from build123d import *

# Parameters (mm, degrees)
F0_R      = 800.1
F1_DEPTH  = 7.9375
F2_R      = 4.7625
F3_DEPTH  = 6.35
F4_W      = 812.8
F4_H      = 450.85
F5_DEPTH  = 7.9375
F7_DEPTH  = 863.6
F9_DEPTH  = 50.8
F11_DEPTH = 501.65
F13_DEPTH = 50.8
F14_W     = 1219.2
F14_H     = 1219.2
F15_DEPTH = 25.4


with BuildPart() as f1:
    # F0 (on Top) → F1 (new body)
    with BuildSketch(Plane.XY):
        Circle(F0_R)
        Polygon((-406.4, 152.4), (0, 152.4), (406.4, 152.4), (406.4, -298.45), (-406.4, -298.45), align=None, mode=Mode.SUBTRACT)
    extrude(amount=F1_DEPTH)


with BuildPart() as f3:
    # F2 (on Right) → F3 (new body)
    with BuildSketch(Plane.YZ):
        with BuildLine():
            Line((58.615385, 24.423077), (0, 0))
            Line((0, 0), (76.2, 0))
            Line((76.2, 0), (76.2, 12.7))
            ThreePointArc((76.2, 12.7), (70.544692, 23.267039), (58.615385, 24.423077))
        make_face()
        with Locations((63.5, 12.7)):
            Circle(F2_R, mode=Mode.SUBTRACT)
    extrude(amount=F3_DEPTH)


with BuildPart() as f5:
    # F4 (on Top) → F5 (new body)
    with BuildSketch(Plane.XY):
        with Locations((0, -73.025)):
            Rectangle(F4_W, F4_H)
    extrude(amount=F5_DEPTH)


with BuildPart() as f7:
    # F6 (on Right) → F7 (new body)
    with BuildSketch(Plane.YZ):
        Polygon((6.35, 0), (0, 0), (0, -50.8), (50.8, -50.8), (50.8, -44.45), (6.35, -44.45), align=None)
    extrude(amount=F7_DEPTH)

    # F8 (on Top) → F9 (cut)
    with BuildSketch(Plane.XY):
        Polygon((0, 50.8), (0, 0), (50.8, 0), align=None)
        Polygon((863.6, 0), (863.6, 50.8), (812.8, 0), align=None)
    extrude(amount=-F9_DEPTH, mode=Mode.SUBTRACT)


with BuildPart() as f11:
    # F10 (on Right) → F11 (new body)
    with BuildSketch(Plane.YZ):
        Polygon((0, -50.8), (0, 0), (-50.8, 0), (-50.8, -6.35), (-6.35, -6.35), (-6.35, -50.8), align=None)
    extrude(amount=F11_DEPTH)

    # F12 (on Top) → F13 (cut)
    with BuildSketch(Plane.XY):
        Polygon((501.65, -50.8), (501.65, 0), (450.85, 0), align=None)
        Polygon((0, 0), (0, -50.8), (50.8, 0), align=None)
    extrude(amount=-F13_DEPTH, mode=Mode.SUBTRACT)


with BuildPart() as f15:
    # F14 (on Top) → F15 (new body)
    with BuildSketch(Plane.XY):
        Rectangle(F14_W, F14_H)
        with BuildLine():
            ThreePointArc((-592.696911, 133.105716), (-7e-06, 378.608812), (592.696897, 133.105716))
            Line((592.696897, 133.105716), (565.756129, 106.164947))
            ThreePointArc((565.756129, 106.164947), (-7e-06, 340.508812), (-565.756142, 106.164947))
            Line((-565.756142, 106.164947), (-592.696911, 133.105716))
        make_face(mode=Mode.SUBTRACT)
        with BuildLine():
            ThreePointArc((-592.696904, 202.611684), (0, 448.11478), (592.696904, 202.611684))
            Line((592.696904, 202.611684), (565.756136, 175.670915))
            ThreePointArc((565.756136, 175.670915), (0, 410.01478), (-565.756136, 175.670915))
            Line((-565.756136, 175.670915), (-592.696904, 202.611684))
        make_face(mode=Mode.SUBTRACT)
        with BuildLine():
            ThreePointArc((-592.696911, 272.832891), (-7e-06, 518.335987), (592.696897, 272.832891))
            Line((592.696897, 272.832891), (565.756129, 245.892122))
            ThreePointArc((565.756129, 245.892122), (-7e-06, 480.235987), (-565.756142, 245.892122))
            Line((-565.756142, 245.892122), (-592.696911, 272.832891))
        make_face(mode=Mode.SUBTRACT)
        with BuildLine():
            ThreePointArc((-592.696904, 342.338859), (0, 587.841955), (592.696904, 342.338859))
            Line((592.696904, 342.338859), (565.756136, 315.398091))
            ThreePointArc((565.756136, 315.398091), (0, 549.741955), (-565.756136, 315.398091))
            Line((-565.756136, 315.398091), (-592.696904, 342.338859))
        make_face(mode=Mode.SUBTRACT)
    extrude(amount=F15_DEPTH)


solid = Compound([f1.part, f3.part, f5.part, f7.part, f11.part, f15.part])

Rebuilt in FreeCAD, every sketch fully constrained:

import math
import FreeCAD as App
import Part
import Sketcher

V = App.Vector
Q = App.Units.Quantity

doc = App.newDocument("Part")
body = doc.addObject("PartDesign::Body", "Body")

sketch1 = doc.addObject("Sketcher::SketchObject", "Sketch")
body.addObject(sketch1)
sketch1.AttachmentSupport = (doc.XY_Plane, [""])
sketch1.MapMode = "FlatFace"
sketch1.addGeometry([
    Part.Circle(V(0, 0, 0), V(0, 0, 1), 800),
    Part.LineSegment(V(-406, -298, 0), V(-406, 152, 0)),
    Part.LineSegment(V(-406, 152, 0), V(406, 152, 0)),
    Part.LineSegment(V(406, 152, 0), V(406, -298, 0)),
    Part.LineSegment(V(406, -298, 0), V(-406, -298, 0)),
], False)
sketch1.addConstraint([
    Sketcher.Constraint("Coincident", 1, 2, 2, 1),
    Sketcher.Constraint("Coincident", 2, 2, 3, 1),
    Sketcher.Constraint("Coincident", 3, 2, 4, 1),
    Sketcher.Constraint("Coincident", 4, 2, 1, 1),
    Sketcher.Constraint("Vertical", 1),
    Sketcher.Constraint("Horizontal", 2),
    Sketcher.Constraint("Vertical", 3),
    Sketcher.Constraint("Horizontal", 4),
    Sketcher.Constraint("Coincident", 0, 3, -1, 1),
    Sketcher.Constraint("Diameter", 0, Q("63 in")),
    Sketcher.Constraint("DistanceX", 2, 1, 2, 2, Q("32 in")),
    Sketcher.Constraint("DistanceX", 1, 2, -1, 1, Q("16 in")),
    Sketcher.Constraint("DistanceY", -1, 1, 1, 2, Q("6 in")),
    Sketcher.Constraint("DistanceY", 1, 1, 1, 2, Q("17.75 in")),
])
pad1 = doc.addObject("PartDesign::Pad", "Pad")
body.addObject(pad1)
pad1.Profile = sketch1
pad1.Length = Q("0.3125 in")
body2 = doc.addObject("PartDesign::Body", "Body001")

sketch2 = doc.addObject("Sketcher::SketchObject", "Sketch001")
body2.addObject(sketch2)
sketch2.AttachmentSupport = (doc.getObject("YZ_Plane001"), [""])
sketch2.MapMode = "FlatFace"
sketch2.addGeometry([
    Part.LineSegment(V(58.6, 24.4, 0), V(0, 0, 0)),
    Part.LineSegment(V(0, 0, 0), V(76.2, 0, 0)),
    Part.LineSegment(V(76.2, 0, 0), V(76.2, 12.7, 0)),
    Part.ArcOfCircle(Part.Circle(V(63.5, 12.7, 0), V(0, 0, 1), 12.7), math.radians(0), math.radians(113)),
    Part.Circle(V(63.5, 12.7, 0), V(0, 0, 1), 4.8),
], False)
sketch2.addConstraint([
    Sketcher.Constraint("Coincident", 0, 2, 1, 1),
    Sketcher.Constraint("Coincident", 1, 2, 2, 1),
    Sketcher.Constraint("Tangent", 2, 2, 3, 1),
    Sketcher.Constraint("Tangent", 3, 2, 0, 1),
    Sketcher.Constraint("Horizontal", 1),
    Sketcher.Constraint("Vertical", 2),
    Sketcher.Constraint("Coincident", 0, 2, -1, 1),
    Sketcher.Constraint("Coincident", 4, 3, 3, 3),
    Sketcher.Constraint("Radius", 3, Q("0.5 in")),
    Sketcher.Constraint("DistanceX", 1, 1, 1, 2, Q("3 in")),
    Sketcher.Constraint("Diameter", 4, Q("0.375 in")),
    Sketcher.Constraint("DistanceY", 2, 1, 2, 2, Q("0.5 in")),
])
pad2 = doc.addObject("PartDesign::Pad", "Pad001")
body2.addObject(pad2)
pad2.Profile = sketch2
pad2.Length = Q("0.25 in")
body3 = doc.addObject("PartDesign::Body", "Body002")

sketch3 = doc.addObject("Sketcher::SketchObject", "Sketch002")
body3.addObject(sketch3)
sketch3.AttachmentSupport = (doc.getObject("XY_Plane002"), [""])
sketch3.MapMode = "FlatFace"
sketch3.addGeometry([
    Part.LineSegment(V(-406, 152, 0), V(-406, -298, 0)),
    Part.LineSegment(V(-406, -298, 0), V(406, -298, 0)),
    Part.LineSegment(V(406, -298, 0), V(406, 152, 0)),
    Part.LineSegment(V(406, 152, 0), V(-406, 152, 0)),
], False)
sketch3.addConstraint([
    Sketcher.Constraint("Coincident", 0, 2, 1, 1),
    Sketcher.Constraint("Coincident", 1, 2, 2, 1),
    Sketcher.Constraint("Coincident", 2, 2, 3, 1),
    Sketcher.Constraint("Coincident", 3, 2, 0, 1),
    Sketcher.Constraint("Vertical", 0),
    Sketcher.Constraint("Horizontal", 1),
    Sketcher.Constraint("Vertical", 2),
    Sketcher.Constraint("Horizontal", 3),
    Sketcher.Constraint("DistanceX", 1, 1, 1, 2, Q("32 in")),
    Sketcher.Constraint("DistanceX", 0, 2, -1, 1, Q("16 in")),
    Sketcher.Constraint("DistanceY", -1, 1, 2, 2, Q("6 in")),
    Sketcher.Constraint("DistanceY", 0, 2, 0, 1, Q("17.75 in")),
])
pad3 = doc.addObject("PartDesign::Pad", "Pad002")
body3.addObject(pad3)
pad3.Profile = sketch3
pad3.Length = Q("0.3125 in")
body4 = doc.addObject("PartDesign::Body", "Body003")

sketch4 = doc.addObject("Sketcher::SketchObject", "Sketch003")
body4.addObject(sketch4)
sketch4.AttachmentSupport = (doc.getObject("YZ_Plane003"), [""])
sketch4.MapMode = "FlatFace"
sketch4.addGeometry([
    Part.LineSegment(V(6, 0, 0), V(0, 0, 0)),
    Part.LineSegment(V(0, 0, 0), V(0, -51, 0)),
    Part.LineSegment(V(0, -51, 0), V(51, -51, 0)),
    Part.LineSegment(V(51, -51, 0), V(51, -44, 0)),
    Part.LineSegment(V(51, -44, 0), V(6, -44, 0)),
    Part.LineSegment(V(6, -44, 0), V(6, 0, 0)),
], False)
sketch4.addConstraint([
    Sketcher.Constraint("Coincident", 0, 2, 1, 1),
    Sketcher.Constraint("Coincident", 1, 2, 2, 1),
    Sketcher.Constraint("Coincident", 2, 2, 3, 1),
    Sketcher.Constraint("Coincident", 3, 2, 4, 1),
    Sketcher.Constraint("Coincident", 4, 2, 5, 1),
    Sketcher.Constraint("Coincident", 5, 2, 0, 1),
    Sketcher.Constraint("Horizontal", 0),
    Sketcher.Constraint("Vertical", 1),
    Sketcher.Constraint("Horizontal", 2),
    Sketcher.Constraint("Vertical", 3),
    Sketcher.Constraint("Horizontal", 4),
    Sketcher.Constraint("Vertical", 5),
    Sketcher.Constraint("Coincident", 0, 2, -1, 1),
    Sketcher.Constraint("Equal", 2, 1),
    Sketcher.Constraint("Equal", 0, 3),
    Sketcher.Constraint("DistanceX", 2, 1, 2, 2, Q("2 in")),
    Sketcher.Constraint("DistanceX", 0, 2, 0, 1, Q("0.25 in")),
])
pad4 = doc.addObject("PartDesign::Pad", "Pad003")
body4.addObject(pad4)
pad4.Profile = sketch4
pad4.Length = Q("34 in")

sketch5 = doc.addObject("Sketcher::SketchObject", "Sketch004")
body4.addObject(sketch5)
sketch5.AttachmentSupport = (doc.getObject("XY_Plane003"), [""])
sketch5.MapMode = "FlatFace"
sketch5.addGeometry([
    Part.LineSegment(V(0, 51, 0), V(0, 0, 0)),
    Part.LineSegment(V(0, 0, 0), V(51, 0, 0)),
    Part.LineSegment(V(51, 0, 0), V(0, 51, 0)),
    Part.LineSegment(V(864, 0, 0), V(864, 51, 0)),
    Part.LineSegment(V(864, 51, 0), V(813, 0, 0)),
    Part.LineSegment(V(813, 0, 0), V(864, 0, 0)),
], False)
sketch5.addConstraint([
    Sketcher.Constraint("Coincident", 0, 2, 1, 1),
    Sketcher.Constraint("Coincident", 1, 2, 2, 1),
    Sketcher.Constraint("Coincident", 2, 2, 0, 1),
    Sketcher.Constraint("Coincident", 3, 2, 4, 1),
    Sketcher.Constraint("Coincident", 4, 2, 5, 1),
    Sketcher.Constraint("Coincident", 5, 2, 3, 1),
    Sketcher.Constraint("Vertical", 0),
    Sketcher.Constraint("Horizontal", 1),
    Sketcher.Constraint("Vertical", 3),
    Sketcher.Constraint("Horizontal", 5),
    Sketcher.Constraint("Coincident", 0, 2, -1, 1),
    Sketcher.Constraint("PointOnObject", 4, 2, -1),
    Sketcher.Constraint("Perpendicular", 2, 4),
    Sketcher.Constraint("Horizontal", 2, 2, 3, 2),
    Sketcher.Constraint("Equal", 1, 5),
    Sketcher.Constraint("DistanceX", 1, 1, 1, 2, Q("2 in")),
    Sketcher.Constraint("DistanceX", -1, 1, 3, 2, Q("34 in")),
])
pocket1 = doc.addObject("PartDesign::Pocket", "Pocket")
body4.addObject(pocket1)
pocket1.Profile = sketch5
pocket1.Length = Q("2 in")
body5 = doc.addObject("PartDesign::Body", "Body004")

sketch6 = doc.addObject("Sketcher::SketchObject", "Sketch005")
body5.addObject(sketch6)
sketch6.AttachmentSupport = (doc.getObject("YZ_Plane004"), [""])
sketch6.MapMode = "FlatFace"
sketch6.addGeometry([
    Part.LineSegment(V(0, -51, 0), V(0, 0, 0)),
    Part.LineSegment(V(0, 0, 0), V(-51, 0, 0)),
    Part.LineSegment(V(-51, 0, 0), V(-51, -6, 0)),
    Part.LineSegment(V(-51, -6, 0), V(-6, -6, 0)),
    Part.LineSegment(V(-6, -6, 0), V(-6, -51, 0)),
    Part.LineSegment(V(-6, -51, 0), V(0, -51, 0)),
], False)
sketch6.addConstraint([
    Sketcher.Constraint("Coincident", 0, 2, 1, 1),
    Sketcher.Constraint("Coincident", 1, 2, 2, 1),
    Sketcher.Constraint("Coincident", 2, 2, 3, 1),
    Sketcher.Constraint("Coincident", 3, 2, 4, 1),
    Sketcher.Constraint("Coincident", 4, 2, 5, 1),
    Sketcher.Constraint("Coincident", 5, 2, 0, 1),
    Sketcher.Constraint("Vertical", 0),
    Sketcher.Constraint("Horizontal", 1),
    Sketcher.Constraint("Vertical", 2),
    Sketcher.Constraint("Horizontal", 3),
    Sketcher.Constraint("Vertical", 4),
    Sketcher.Constraint("Horizontal", 5),
    Sketcher.Constraint("Coincident", 0, 2, -1, 1),
    Sketcher.Constraint("Equal", 1, 0),
    Sketcher.Constraint("Equal", 5, 2),
    Sketcher.Constraint("DistanceX", 1, 2, 1, 1, Q("2 in")),
    Sketcher.Constraint("DistanceX", 3, 1, 3, 2, Q("1.75 in")),
])
pad5 = doc.addObject("PartDesign::Pad", "Pad004")
body5.addObject(pad5)
pad5.Profile = sketch6
pad5.Length = Q("19.75 in")

sketch7 = doc.addObject("Sketcher::SketchObject", "Sketch006")
body5.addObject(sketch7)
sketch7.AttachmentSupport = (doc.getObject("XY_Plane004"), [""])
sketch7.MapMode = "FlatFace"
sketch7.addGeometry([
    Part.LineSegment(V(502, -51, 0), V(502, 0, 0)),
    Part.LineSegment(V(502, 0, 0), V(451, 0, 0)),
    Part.LineSegment(V(451, 0, 0), V(502, -51, 0)),
    Part.LineSegment(V(0, 0, 0), V(0, -51, 0)),
    Part.LineSegment(V(0, -51, 0), V(51, 0, 0)),
    Part.LineSegment(V(51, 0, 0), V(0, 0, 0)),
], False)
sketch7.addConstraint([
    Sketcher.Constraint("Coincident", 0, 2, 1, 1),
    Sketcher.Constraint("Coincident", 1, 2, 2, 1),
    Sketcher.Constraint("Coincident", 2, 2, 0, 1),
    Sketcher.Constraint("Coincident", 3, 2, 4, 1),
    Sketcher.Constraint("Coincident", 4, 2, 5, 1),
    Sketcher.Constraint("Coincident", 5, 2, 3, 1),
    Sketcher.Constraint("Vertical", 0),
    Sketcher.Constraint("Horizontal", 1),
    Sketcher.Constraint("Vertical", 3),
    Sketcher.Constraint("Horizontal", 5),
    Sketcher.Constraint("Coincident", 5, 2, -1, 1),
    Sketcher.Constraint("PointOnObject", 0, 2, -1),
    Sketcher.Constraint("Perpendicular", 2, 4),
    Sketcher.Constraint("Horizontal", 2, 2, 3, 2),
    Sketcher.Constraint("Equal", 1, 5),
    Sketcher.Constraint("DistanceX", 1, 2, 1, 1, Q("2 in")),
    Sketcher.Constraint("DistanceX", -1, 1, 0, 2, Q("19.75 in")),
])
pocket2 = doc.addObject("PartDesign::Pocket", "Pocket001")
body5.addObject(pocket2)
pocket2.Profile = sketch7
pocket2.Length = Q("2 in")
body6 = doc.addObject("PartDesign::Body", "Body005")

sketch8 = doc.addObject("Sketcher::SketchObject", "Sketch007")
body6.addObject(sketch8)
sketch8.AttachmentSupport = (doc.getObject("XY_Plane005"), [""])
sketch8.MapMode = "FlatFace"
sketch8.addGeometry([
    Part.LineSegment(V(-610, 610, 0), V(-610, -610, 0)),
    Part.LineSegment(V(-610, -610, 0), V(610, -610, 0)),
    Part.LineSegment(V(610, -610, 0), V(610, 610, 0)),
    Part.LineSegment(V(610, 610, 0), V(-610, 610, 0)),
    Part.LineSegment(V(-566, 106, 0), V(-593, 133, 0)),
    Part.ArcOfCircle(Part.Circle(V(0, -460, 0), V(0, 0, 1), 838), math.radians(45), math.radians(135)),
    Part.LineSegment(V(593, 133, 0), V(566, 106, 0)),
    Part.ArcOfCircle(Part.Circle(V(0, -460, 0), V(0, 0, 1), 800), math.radians(45), math.radians(135)),
    Part.LineSegment(V(-566, 176, 0), V(-593, 203, 0)),
    Part.ArcOfCircle(Part.Circle(V(0, -390, 0), V(0, 0, 1), 838), math.radians(45), math.radians(135)),
    Part.LineSegment(V(593, 203, 0), V(566, 176, 0)),
    Part.ArcOfCircle(Part.Circle(V(0, -390, 0), V(0, 0, 1), 800), math.radians(45), math.radians(135)),
    Part.LineSegment(V(-566, 246, 0), V(-593, 273, 0)),
    Part.ArcOfCircle(Part.Circle(V(0, -320, 0), V(0, 0, 1), 838), math.radians(45), math.radians(135)),
    Part.LineSegment(V(593, 273, 0), V(566, 246, 0)),
    Part.ArcOfCircle(Part.Circle(V(0, -320, 0), V(0, 0, 1), 800), math.radians(45), math.radians(135)),
    Part.LineSegment(V(-566, 315, 0), V(-593, 342, 0)),
    Part.ArcOfCircle(Part.Circle(V(0, -250, 0), V(0, 0, 1), 838), math.radians(45), math.radians(135)),
    Part.LineSegment(V(593, 342, 0), V(566, 315, 0)),
    Part.ArcOfCircle(Part.Circle(V(0, -250, 0), V(0, 0, 1), 800), math.radians(45), math.radians(135)),
], False)
sketch8.addConstraint([
    Sketcher.Constraint("Coincident", 0, 2, 1, 1),
    Sketcher.Constraint("Coincident", 1, 2, 2, 1),
    Sketcher.Constraint("Coincident", 2, 2, 3, 1),
    Sketcher.Constraint("Coincident", 3, 2, 0, 1),
    Sketcher.Constraint("Coincident", 4, 2, 5, 2),
    Sketcher.Constraint("Coincident", 5, 1, 6, 1),
    Sketcher.Constraint("Coincident", 6, 2, 7, 1),
    Sketcher.Constraint("Coincident", 7, 2, 4, 1),
    Sketcher.Constraint("Coincident", 8, 2, 9, 2),
    Sketcher.Constraint("Coincident", 9, 1, 10, 1),
    Sketcher.Constraint("Coincident", 10, 2, 11, 1),
    Sketcher.Constraint("Coincident", 11, 2, 8, 1),
    Sketcher.Constraint("Coincident", 12, 2, 13, 2),
    Sketcher.Constraint("Coincident", 13, 1, 14, 1),
    Sketcher.Constraint("Coincident", 14, 2, 15, 1),
    Sketcher.Constraint("Coincident", 15, 2, 12, 1),
    Sketcher.Constraint("Coincident", 16, 2, 17, 2),
    Sketcher.Constraint("Coincident", 17, 1, 18, 1),
    Sketcher.Constraint("Coincident", 18, 2, 19, 1),
    Sketcher.Constraint("Coincident", 19, 2, 16, 1),
    Sketcher.Constraint("Vertical", 0),
    Sketcher.Constraint("Horizontal", 1),
    Sketcher.Constraint("Vertical", 2),
    Sketcher.Constraint("Horizontal", 3),
    Sketcher.Constraint("Coincident", 7, 3, 5, 3),
    Sketcher.Constraint("Coincident", 11, 3, 9, 3),
    Sketcher.Constraint("Coincident", 15, 3, 13, 3),
    Sketcher.Constraint("Coincident", 19, 3, 17, 3),
    Sketcher.Constraint("Equal", 5, 9),
    Sketcher.Constraint("Equal", 7, 11),
    Sketcher.Constraint("Equal", 9, 13),
    Sketcher.Constraint("Equal", 11, 15),
    Sketcher.Constraint("Equal", 13, 17),
    Sketcher.Constraint("Symmetric", 0, 2, 2, 2, -1, 1),
    Sketcher.Constraint("PointOnObject", 9, 3, -2),
    Sketcher.Constraint("PointOnObject", 17, 3, -2),
    Sketcher.Constraint("Perpendicular", 4, 6),
    Sketcher.Constraint("Perpendicular", 6, 8),
    Sketcher.Constraint("Perpendicular", 8, 10),
    Sketcher.Constraint("Perpendicular", 10, 12),
    Sketcher.Constraint("Perpendicular", 12, 14),
    Sketcher.Constraint("Perpendicular", 14, 16),
    Sketcher.Constraint("Perpendicular", 16, 18),
    Sketcher.Constraint("Vertical", 7, 3, 13, 3),
    Sketcher.Constraint("Vertical", 4, 2, 12, 2),
    Sketcher.Constraint("Vertical", 6, 2, 14, 2),
    Sketcher.Constraint("Vertical", 8, 2, 16, 2),
    Sketcher.Constraint("Vertical", 10, 2, 18, 2),
    Sketcher.Constraint("Equal", 3, 0),
    Sketcher.Constraint("Equal", 14, 16),
    Sketcher.Constraint("Radius", 5, Q("33 in")),
    Sketcher.Constraint("Radius", 7, Q("31.4999999 in")),
    Sketcher.Constraint("DistanceX", 1, 1, 1, 2, Q("48 in")),
    Sketcher.Constraint("Angle", 4, Q("135 deg")),
    Sketcher.Constraint("DistanceY", 5, 3, -1, 1, 459.591188),
    Sketcher.Constraint("DistanceY", 9, 3, -1, 1, 390.08522),
    Sketcher.Constraint("DistanceY", 15, 3, -1, 1, 319.864011),
    Sketcher.Constraint("DistanceX", 4, 2, -1, 1, 592.696911),
    Sketcher.Constraint("DistanceX", -1, 1, 6, 2, 565.756129),
    Sketcher.Constraint("DistanceY", -1, 1, 12, 2, 272.832891),
    Sketcher.Constraint("DistanceY", -1, 1, 16, 2, 342.338859),
    Sketcher.Constraint("DistanceY", -1, 1, 18, 2, 315.398091),
    Sketcher.Constraint("DistanceY", 13, 3, 17, 3, 69.505968),
])
pad6 = doc.addObject("PartDesign::Pad", "Pad005")
body6.addObject(pad6)
pad6.Profile = sketch8
pad6.Length = Q("1 in")

doc.recompute()
